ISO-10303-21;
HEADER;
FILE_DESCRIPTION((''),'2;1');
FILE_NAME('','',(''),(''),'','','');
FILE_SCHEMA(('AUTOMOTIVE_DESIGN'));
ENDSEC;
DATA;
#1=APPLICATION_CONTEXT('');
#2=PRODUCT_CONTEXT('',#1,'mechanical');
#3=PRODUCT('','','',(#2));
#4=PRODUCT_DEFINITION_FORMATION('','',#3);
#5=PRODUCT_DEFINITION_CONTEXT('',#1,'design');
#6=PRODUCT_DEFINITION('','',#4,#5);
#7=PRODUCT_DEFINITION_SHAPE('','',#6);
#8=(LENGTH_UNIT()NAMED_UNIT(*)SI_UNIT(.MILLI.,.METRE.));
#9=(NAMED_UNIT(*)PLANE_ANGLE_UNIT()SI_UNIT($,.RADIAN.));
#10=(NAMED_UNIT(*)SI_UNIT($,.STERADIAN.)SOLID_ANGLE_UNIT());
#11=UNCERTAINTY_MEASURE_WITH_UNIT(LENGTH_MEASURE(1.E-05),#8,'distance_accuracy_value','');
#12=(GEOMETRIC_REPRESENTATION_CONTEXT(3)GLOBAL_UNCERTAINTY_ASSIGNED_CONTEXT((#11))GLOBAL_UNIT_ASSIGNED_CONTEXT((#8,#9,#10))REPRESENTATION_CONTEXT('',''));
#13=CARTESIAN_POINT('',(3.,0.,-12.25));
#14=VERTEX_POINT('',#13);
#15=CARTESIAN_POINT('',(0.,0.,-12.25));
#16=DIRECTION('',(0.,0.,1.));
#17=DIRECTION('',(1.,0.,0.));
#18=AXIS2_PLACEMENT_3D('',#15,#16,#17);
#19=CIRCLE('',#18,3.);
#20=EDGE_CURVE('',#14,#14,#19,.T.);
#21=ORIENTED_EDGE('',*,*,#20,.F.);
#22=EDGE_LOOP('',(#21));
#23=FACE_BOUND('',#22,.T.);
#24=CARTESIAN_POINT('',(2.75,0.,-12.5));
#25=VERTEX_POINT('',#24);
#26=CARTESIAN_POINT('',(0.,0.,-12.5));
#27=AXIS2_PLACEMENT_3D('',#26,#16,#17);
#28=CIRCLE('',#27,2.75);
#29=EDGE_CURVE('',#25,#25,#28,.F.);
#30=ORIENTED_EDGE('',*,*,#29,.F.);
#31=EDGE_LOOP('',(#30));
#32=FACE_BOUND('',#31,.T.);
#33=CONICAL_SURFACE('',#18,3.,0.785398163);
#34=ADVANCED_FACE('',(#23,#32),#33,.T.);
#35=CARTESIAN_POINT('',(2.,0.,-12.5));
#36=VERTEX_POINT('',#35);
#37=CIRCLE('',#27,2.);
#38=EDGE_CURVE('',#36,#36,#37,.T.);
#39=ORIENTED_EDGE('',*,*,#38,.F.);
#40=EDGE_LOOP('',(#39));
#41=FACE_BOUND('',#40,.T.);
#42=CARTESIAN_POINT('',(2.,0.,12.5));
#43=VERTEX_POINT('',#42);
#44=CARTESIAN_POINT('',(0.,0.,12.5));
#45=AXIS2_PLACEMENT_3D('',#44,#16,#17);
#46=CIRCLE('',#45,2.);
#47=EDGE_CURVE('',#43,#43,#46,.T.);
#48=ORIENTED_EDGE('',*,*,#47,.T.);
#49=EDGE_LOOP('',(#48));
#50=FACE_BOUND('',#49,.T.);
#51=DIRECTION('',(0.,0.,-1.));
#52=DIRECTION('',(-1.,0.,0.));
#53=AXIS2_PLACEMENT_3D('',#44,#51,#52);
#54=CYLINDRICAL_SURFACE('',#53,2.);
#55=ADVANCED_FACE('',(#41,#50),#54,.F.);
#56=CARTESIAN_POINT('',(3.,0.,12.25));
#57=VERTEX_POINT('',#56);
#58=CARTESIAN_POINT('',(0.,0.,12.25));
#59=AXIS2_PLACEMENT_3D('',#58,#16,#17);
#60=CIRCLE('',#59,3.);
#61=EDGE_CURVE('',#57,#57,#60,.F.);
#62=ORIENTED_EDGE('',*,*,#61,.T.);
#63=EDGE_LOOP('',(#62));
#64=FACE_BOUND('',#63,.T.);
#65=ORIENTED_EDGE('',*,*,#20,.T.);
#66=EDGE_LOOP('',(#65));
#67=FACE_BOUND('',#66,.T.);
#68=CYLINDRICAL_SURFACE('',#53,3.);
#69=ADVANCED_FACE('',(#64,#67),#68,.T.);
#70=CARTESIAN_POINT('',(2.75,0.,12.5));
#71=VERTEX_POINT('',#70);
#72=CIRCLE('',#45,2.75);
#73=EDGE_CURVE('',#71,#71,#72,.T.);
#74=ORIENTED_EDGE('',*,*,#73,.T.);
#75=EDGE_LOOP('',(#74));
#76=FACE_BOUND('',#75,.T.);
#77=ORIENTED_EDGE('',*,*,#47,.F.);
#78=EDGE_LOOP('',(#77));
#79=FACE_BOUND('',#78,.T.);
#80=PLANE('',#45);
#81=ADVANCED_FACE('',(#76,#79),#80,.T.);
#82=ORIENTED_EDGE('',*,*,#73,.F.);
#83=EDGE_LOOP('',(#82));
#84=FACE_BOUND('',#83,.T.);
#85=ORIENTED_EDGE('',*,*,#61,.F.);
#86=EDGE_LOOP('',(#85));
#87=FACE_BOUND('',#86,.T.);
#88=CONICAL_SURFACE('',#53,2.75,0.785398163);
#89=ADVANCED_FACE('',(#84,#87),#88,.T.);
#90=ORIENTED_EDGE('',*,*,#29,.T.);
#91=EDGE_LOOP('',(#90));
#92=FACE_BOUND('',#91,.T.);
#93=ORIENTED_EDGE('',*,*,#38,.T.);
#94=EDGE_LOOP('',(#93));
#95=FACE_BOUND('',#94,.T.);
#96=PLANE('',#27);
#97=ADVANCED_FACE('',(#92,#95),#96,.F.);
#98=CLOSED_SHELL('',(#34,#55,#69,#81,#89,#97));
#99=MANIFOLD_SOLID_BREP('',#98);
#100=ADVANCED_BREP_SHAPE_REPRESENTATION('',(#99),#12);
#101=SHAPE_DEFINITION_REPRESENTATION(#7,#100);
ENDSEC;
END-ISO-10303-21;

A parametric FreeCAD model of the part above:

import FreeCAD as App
import Part
import Sketcher

V = App.Vector


def edges_at(feature, points):
    """Names of the edges that pass closest to the given points."""
    edges = feature.Shape.Edges
    near = lambda p: min(range(len(edges)), key=lambda i: edges[i].distToShape(Part.Vertex(*p))[0])
    return sorted({f"Edge{near(p) + 1}" for p in points})

doc = App.newDocument("Part")
body = doc.addObject("PartDesign::Body", "Body")

sketch1 = body.newObject("Sketcher::SketchObject", "Sketch")
sketch1.AttachmentSupport = (doc.getObject("XY_Plane"), [""])
sketch1.MapMode = "FlatFace"
sketch1.addGeometry(Part.Circle(V(0, 0, 0), V(0, 0, 1), 3), False)
sketch1.addGeometry(Part.Circle(V(0, 0, 0), V(0, 0, 1), 2), False)
sketch1.addConstraint(Sketcher.Constraint("Coincident", 0, 3, -1, 1))
sketch1.addConstraint(Sketcher.Constraint("Coincident", 1, 3, -1, 1))
sketch1.addConstraint(Sketcher.Constraint("Diameter", 0, 6.0))
sketch1.addConstraint(Sketcher.Constraint("Diameter", 1, 4.0))
pad1 = body.newObject("PartDesign::Pad", "Pad")
pad1.Profile = sketch1
pad1.Length = 25
pad1.Midplane = True
doc.recompute()

chamfer = body.newObject("PartDesign::Chamfer", "Chamfer")
chamfer.Base = (pad1, edges_at(pad1, [(-3, 0, -12.5), (-3, 0, 12.5)]))
chamfer.Size = 0.25

doc.recompute()
